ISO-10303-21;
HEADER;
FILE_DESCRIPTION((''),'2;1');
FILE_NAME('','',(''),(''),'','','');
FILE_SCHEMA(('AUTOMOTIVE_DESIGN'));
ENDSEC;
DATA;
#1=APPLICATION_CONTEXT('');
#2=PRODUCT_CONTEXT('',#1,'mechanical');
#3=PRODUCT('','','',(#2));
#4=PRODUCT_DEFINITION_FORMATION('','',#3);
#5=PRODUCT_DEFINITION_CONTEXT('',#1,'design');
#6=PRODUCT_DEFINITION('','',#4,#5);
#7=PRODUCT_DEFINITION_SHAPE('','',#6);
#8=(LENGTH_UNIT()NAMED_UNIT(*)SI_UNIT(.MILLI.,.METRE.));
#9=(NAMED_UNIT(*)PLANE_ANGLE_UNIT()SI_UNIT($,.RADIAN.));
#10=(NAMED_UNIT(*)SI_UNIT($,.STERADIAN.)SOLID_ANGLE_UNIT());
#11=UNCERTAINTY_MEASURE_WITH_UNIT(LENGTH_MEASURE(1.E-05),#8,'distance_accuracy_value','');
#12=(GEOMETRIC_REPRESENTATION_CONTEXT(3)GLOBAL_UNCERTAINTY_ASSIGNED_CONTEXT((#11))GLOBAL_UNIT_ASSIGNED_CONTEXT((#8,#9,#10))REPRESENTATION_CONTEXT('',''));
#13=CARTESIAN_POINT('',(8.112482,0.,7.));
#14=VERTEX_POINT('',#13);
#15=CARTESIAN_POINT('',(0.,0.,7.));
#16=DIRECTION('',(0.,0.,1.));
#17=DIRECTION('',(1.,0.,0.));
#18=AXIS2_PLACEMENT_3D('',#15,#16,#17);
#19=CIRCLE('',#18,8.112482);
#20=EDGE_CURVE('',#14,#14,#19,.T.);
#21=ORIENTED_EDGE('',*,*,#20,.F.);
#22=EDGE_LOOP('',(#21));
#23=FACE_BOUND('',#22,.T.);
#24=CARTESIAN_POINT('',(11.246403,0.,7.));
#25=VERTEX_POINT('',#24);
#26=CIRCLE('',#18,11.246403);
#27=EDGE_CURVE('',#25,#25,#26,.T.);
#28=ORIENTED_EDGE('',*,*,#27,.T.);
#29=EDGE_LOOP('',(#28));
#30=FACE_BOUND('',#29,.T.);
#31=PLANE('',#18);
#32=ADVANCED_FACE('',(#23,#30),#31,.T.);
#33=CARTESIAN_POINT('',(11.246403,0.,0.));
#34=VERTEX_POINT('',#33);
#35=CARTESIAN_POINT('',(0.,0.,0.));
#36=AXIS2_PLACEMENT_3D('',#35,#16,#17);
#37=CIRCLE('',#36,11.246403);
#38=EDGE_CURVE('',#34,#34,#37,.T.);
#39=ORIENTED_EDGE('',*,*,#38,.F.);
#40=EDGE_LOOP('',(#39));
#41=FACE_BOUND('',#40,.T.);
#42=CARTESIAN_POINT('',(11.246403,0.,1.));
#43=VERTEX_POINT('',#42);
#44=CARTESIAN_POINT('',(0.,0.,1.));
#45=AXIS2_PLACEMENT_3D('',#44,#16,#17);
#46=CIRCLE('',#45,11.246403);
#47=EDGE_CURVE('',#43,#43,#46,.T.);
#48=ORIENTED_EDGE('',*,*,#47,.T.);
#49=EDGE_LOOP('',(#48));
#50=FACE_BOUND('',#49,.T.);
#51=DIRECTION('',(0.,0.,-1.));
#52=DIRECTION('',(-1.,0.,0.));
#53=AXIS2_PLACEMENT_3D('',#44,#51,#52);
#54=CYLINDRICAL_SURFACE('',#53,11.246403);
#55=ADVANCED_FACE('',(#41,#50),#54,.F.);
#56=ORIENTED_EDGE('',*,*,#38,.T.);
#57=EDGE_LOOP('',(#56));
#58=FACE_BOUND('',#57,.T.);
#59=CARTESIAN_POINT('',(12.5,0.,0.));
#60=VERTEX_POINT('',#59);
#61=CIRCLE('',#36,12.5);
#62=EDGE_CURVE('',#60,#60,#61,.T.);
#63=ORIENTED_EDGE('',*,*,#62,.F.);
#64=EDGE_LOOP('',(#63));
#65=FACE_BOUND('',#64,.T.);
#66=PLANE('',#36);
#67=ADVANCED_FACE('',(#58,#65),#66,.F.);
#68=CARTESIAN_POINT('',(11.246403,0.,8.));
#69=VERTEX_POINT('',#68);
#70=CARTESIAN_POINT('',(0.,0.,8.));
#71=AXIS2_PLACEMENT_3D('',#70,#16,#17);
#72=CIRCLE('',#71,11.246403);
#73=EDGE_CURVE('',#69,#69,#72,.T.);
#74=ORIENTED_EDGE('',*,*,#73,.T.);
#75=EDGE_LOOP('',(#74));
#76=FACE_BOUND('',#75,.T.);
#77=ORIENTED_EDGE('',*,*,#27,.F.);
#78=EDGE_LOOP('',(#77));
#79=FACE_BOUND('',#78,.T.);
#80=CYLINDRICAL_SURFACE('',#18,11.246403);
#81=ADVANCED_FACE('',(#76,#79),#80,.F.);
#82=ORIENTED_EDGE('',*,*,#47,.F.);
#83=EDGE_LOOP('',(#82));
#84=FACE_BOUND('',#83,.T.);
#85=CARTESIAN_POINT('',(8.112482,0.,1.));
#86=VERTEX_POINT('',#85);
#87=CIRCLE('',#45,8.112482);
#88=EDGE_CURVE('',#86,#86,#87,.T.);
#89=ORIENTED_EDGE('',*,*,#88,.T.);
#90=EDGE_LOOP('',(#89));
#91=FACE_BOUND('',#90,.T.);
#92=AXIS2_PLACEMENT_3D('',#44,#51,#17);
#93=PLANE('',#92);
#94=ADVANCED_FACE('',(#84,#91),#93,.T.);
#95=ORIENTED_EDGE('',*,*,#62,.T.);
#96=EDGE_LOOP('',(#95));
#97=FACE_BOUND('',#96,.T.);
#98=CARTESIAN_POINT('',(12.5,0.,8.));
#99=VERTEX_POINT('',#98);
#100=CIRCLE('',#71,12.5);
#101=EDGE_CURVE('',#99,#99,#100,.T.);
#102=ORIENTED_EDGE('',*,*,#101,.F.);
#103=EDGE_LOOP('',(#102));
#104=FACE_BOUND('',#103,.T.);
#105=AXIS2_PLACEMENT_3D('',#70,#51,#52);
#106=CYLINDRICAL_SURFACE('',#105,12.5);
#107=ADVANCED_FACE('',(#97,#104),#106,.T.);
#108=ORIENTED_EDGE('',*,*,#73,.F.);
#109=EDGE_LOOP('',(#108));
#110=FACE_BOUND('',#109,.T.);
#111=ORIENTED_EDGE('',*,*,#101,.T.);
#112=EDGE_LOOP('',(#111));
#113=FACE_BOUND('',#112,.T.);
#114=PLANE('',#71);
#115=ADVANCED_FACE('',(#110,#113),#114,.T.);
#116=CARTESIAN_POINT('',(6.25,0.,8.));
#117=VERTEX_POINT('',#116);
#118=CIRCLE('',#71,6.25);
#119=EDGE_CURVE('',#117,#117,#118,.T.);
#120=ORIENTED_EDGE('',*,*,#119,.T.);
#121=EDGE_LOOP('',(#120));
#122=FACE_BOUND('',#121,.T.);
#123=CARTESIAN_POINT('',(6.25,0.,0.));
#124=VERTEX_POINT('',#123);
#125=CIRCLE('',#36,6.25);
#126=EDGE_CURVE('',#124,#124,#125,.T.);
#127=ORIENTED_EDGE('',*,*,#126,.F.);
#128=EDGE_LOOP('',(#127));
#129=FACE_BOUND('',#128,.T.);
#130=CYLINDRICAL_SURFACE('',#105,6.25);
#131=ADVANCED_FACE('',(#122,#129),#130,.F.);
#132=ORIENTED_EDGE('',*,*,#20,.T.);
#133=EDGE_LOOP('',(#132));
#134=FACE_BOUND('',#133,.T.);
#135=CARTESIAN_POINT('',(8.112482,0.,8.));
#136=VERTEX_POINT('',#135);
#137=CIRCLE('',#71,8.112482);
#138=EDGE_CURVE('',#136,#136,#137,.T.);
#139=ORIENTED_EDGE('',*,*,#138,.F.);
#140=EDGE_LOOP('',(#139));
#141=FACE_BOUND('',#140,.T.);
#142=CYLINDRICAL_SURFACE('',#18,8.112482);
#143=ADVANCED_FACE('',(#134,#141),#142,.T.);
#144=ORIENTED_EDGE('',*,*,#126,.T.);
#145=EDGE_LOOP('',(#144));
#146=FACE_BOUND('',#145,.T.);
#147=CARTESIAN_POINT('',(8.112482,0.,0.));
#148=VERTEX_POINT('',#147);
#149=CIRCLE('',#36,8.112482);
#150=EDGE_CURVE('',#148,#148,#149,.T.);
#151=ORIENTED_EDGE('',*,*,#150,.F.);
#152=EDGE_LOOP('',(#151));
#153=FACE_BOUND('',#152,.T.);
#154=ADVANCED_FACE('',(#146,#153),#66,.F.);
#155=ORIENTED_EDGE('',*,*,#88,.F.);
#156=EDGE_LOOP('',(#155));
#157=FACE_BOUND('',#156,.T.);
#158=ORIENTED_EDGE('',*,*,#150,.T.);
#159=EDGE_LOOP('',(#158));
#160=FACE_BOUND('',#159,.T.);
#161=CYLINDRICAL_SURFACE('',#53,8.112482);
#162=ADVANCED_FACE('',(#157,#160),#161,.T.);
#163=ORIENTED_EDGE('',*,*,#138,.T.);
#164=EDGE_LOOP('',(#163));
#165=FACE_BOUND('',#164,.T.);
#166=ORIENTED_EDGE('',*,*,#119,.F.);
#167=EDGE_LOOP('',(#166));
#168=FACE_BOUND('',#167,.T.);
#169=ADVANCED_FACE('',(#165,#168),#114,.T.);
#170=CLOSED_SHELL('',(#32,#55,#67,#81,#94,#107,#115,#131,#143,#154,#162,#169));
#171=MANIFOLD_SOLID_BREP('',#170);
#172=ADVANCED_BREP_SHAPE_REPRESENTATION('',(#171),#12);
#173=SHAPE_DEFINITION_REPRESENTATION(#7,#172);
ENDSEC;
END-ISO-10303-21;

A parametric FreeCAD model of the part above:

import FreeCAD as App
import Part
import Sketcher

V = App.Vector
Q = App.Units.Quantity

doc = App.newDocument("Part")
params = doc.addObject("Spreadsheet::Sheet", "Params")
for row, (alias, value) in enumerate([
    ("sketch1_diameter", "25 mm"),
    ("sketch1_diameter2", "12.5 mm"),
    ("pad1_length", "8 mm"),
    ("pocket1_length", "1 mm"),
], start=1):
    params.set(f"A{row}", alias)
    params.set(f"B{row}", "=" + value)
    params.setAlias(f"B{row}", alias)

body = doc.addObject("PartDesign::Body", "Body")

# Sketch on XY plane
sketch1 = body.newObject("Sketcher::SketchObject", "Sketch")
sketch1.AttachmentSupport = (doc.getObject("XY_Plane"), [""])
sketch1.MapMode = "FlatFace"
sketch1.addGeometry(Part.Circle(V(0, 0, 0), V(0, 0, 1), 12.5), False)
sketch1.addGeometry(Part.Circle(V(0, 0, 0), V(0, 0, 1), 6.25), False)
sketch1.addConstraint(Sketcher.Constraint("Coincident", 0, 3, -1, 1))
sketch1.addConstraint(Sketcher.Constraint("Coincident", 1, 3, -1, 1))
sketch1.addConstraint(Sketcher.Constraint("Diameter", 0, Q("25 mm")))
sketch1.addConstraint(Sketcher.Constraint("Diameter", 1, Q("12.5 mm")))
sketch1.setExpression("Constraints[2]", "Params.sketch1_diameter")
sketch1.setExpression("Constraints[3]", "Params.sketch1_diameter2")
pad1 = body.newObject("PartDesign::Pad", "Pad")
pad1.Profile = sketch1
pad1.setExpression("Length", "Params.pad1_length")

# Sketch on XY plane
sketch2 = body.newObject("Sketcher::SketchObject", "Sketch001")
sketch2.AttachmentSupport = (doc.getObject("XY_Plane"), [""])
sketch2.MapMode = "FlatFace"
sketch2.AttachmentOffset = App.Placement(V(0, 0, 8), App.Rotation())
sketch2.addGeometry(Part.Circle(V(0, 0, 0), V(0, 0, 1), 11.246403), False)
sketch2.addGeometry(Part.Circle(V(0, 0, 0), V(0, 0, 1), 8.112482), False)
sketch2.addConstraint(Sketcher.Constraint("Coincident", 0, 3, -1, 1))
sketch2.addConstraint(Sketcher.Constraint("Coincident", 1, 3, -1, 1))
sketch2.addConstraint(Sketcher.Constraint("Diameter", 0, Q("22.492806 mm")))
sketch2.addConstraint(Sketcher.Constraint("Diameter", 1, Q("16.224964 mm")))
pocket1 = body.newObject("PartDesign::Pocket", "Pocket")
pocket1.Profile = sketch2
pocket1.setExpression("Length", "Params.pocket1_length")
doc.recompute()

datumplane = body.newObject("PartDesign::Plane", "DatumPlane")
datumplane.AttachmentSupport = (doc.getObject("XY_Plane"), [""])
datumplane.MapMode = "FlatFace"
datumplane.AttachmentOffset = App.Placement(V(0, 0, 4), App.Rotation())
mirrored = body.newObject("PartDesign::Mirrored", "Mirrored")
mirrored.Originals = [pocket1]
mirrored.MirrorPlane = (datumplane, [""])
body.Tip = mirrored

doc.recompute()
